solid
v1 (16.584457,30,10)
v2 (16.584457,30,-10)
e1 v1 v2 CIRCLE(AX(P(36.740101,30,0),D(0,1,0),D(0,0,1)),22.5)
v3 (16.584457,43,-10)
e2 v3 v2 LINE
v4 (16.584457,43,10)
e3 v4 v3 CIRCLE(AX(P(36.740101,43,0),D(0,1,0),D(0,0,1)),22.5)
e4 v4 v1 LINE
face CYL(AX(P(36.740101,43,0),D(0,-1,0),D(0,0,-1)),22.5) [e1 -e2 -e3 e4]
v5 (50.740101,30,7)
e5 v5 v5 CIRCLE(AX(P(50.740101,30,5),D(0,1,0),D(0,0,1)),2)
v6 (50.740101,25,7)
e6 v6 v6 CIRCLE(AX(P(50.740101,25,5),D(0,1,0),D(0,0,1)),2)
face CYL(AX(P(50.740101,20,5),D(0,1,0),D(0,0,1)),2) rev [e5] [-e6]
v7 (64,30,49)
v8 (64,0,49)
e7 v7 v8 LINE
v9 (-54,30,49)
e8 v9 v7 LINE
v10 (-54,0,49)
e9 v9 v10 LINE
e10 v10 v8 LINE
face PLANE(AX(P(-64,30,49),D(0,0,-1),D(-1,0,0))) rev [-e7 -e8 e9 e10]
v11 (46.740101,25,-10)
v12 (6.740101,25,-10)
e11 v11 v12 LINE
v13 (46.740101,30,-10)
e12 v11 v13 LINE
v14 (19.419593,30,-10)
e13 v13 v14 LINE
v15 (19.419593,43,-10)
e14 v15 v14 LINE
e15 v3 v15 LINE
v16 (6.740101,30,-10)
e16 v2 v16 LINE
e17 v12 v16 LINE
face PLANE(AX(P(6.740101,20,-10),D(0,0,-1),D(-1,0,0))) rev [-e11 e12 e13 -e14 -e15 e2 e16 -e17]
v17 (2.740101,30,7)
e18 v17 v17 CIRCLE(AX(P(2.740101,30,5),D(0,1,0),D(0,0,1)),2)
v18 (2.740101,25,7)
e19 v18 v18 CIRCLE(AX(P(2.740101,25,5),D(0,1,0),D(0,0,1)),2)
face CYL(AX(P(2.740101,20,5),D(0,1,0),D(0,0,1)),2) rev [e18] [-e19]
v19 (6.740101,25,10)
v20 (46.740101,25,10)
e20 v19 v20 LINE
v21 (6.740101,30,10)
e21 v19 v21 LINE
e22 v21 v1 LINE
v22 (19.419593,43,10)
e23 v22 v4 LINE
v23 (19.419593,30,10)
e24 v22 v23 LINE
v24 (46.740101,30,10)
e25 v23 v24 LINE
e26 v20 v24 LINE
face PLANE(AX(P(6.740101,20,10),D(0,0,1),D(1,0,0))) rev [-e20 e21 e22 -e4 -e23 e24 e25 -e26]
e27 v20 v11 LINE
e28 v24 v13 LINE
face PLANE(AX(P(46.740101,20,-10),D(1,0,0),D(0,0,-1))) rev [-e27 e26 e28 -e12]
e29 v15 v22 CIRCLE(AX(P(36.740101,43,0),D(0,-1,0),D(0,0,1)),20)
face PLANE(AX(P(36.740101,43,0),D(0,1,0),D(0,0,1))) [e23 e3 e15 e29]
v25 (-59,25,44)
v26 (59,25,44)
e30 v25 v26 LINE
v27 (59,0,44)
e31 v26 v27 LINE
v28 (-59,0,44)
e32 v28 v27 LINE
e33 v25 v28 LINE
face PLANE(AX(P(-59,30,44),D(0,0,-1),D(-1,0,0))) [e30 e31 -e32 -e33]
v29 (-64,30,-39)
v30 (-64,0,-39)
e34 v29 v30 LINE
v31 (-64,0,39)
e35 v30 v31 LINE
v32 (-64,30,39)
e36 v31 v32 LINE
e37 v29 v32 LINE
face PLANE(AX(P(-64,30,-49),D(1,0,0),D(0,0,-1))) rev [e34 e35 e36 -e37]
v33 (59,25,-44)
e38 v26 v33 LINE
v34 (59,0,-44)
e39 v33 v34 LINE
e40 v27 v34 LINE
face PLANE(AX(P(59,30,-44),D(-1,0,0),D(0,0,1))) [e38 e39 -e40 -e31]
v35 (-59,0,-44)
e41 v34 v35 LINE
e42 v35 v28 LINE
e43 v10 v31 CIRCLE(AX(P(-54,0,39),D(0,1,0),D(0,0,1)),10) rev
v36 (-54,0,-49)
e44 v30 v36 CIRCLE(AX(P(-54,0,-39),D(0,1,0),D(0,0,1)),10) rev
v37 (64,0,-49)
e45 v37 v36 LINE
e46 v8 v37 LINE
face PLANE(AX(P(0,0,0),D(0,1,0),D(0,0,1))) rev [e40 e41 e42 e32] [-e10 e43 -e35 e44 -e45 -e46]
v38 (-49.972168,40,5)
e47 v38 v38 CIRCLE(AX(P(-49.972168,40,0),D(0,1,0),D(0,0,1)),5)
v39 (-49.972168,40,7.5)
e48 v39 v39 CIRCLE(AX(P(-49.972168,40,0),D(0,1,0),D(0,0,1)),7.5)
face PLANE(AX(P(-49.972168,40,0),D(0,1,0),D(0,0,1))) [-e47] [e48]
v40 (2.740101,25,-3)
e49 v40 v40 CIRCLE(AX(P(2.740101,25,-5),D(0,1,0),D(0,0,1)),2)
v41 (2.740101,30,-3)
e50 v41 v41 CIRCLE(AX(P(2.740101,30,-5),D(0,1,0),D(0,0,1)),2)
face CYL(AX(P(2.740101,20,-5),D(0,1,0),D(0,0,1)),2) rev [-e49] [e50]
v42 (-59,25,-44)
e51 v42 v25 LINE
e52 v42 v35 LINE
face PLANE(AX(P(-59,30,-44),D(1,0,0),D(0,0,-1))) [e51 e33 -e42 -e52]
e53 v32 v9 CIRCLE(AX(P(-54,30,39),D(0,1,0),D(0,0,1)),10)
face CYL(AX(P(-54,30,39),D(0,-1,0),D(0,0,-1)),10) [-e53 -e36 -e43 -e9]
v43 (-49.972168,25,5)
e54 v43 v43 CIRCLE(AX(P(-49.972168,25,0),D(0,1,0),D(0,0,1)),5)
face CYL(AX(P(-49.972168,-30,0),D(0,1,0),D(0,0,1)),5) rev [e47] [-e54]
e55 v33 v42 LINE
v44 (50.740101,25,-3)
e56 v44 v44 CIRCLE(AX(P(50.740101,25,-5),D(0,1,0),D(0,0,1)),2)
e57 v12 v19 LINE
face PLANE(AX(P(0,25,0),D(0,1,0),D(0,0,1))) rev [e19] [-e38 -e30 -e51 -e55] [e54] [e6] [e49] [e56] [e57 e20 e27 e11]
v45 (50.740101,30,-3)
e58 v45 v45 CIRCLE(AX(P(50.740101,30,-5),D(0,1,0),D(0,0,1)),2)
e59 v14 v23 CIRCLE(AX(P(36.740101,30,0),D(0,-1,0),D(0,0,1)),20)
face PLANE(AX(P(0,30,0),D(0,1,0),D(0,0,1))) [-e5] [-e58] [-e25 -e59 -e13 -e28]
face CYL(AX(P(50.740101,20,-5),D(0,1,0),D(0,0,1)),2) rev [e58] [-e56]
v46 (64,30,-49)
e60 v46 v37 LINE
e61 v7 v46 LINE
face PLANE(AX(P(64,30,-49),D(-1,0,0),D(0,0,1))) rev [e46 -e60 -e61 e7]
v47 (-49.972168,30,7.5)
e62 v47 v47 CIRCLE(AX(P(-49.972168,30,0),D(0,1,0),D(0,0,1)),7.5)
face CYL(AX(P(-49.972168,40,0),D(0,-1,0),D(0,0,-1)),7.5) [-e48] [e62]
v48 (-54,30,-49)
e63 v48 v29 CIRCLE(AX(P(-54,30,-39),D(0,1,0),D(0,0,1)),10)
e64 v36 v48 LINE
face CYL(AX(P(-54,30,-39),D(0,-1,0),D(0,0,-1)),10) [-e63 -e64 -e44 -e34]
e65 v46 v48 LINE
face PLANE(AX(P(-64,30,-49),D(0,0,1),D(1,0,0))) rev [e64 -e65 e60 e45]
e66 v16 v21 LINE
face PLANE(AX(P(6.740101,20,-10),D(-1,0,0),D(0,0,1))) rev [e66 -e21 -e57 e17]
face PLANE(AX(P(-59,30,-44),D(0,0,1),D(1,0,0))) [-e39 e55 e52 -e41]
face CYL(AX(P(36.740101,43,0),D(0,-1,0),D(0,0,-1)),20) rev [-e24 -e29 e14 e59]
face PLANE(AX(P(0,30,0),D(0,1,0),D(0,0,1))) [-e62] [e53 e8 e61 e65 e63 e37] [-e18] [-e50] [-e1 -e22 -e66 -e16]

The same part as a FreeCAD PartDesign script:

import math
import FreeCAD as App
import Part
import Sketcher


def edges_at(feature, points):
    """Names of the edges that pass closest to the given points."""
    edges = feature.Shape.Edges
    near = lambda p: min(range(len(edges)), key=lambda i: edges[i].distToShape(Part.Vertex(*p))[0])
    return sorted({f"Edge{near(p) + 1}" for p in points})

doc = App.newDocument("Part")
body = doc.addObject("PartDesign::Body", "Body")

sketch1 = body.newObject("Sketcher::SketchObject", "Sketch")
sketch1.AttachmentSupport = (doc.getObject("XZ_Plane"), [""])
sketch1.MapMode = "FlatFace"
sketch1.addGeometry(Part.LineSegment(App.Vector(-64, -49, 0), App.Vector(-64, 49, 0)), False)
sketch1.addGeometry(Part.LineSegment(App.Vector(-64, 49, 0), App.Vector(64, 49, 0)), False)
sketch1.addGeometry(Part.LineSegment(App.Vector(64, 49, 0), App.Vector(64, -49, 0)), False)
sketch1.addGeometry(Part.LineSegment(App.Vector(64, -49, 0), App.Vector(-64, -49, 0)), False)
sketch1.addGeometry(Part.LineSegment(App.Vector(59, 44, 0), App.Vector(-59, 44, 0)), False)
sketch1.addGeometry(Part.LineSegment(App.Vector(-59, 44, 0), App.Vector(-59, -44, 0)), False)
sketch1.addGeometry(Part.LineSegment(App.Vector(-59, -44, 0), App.Vector(59, -44, 0)), False)
sketch1.addGeometry(Part.LineSegment(App.Vector(59, -44, 0), App.Vector(59, 44, 0)), False)
sketch1.addConstraint(Sketcher.Constraint("Coincident", 0, 2, 1, 1))
sketch1.addConstraint(Sketcher.Constraint("Coincident", 1, 2, 2, 1))
sketch1.addConstraint(Sketcher.Constraint("Coincident", 2, 2, 3, 1))
sketch1.addConstraint(Sketcher.Constraint("Coincident", 3, 2, 0, 1))
sketch1.addConstraint(Sketcher.Constraint("Coincident", 4, 2, 5, 1))
sketch1.addConstraint(Sketcher.Constraint("Coincident", 5, 2, 6, 1))
sketch1.addConstraint(Sketcher.Constraint("Coincident", 6, 2, 7, 1))
sketch1.addConstraint(Sketcher.Constraint("Coincident", 7, 2, 4, 1))
sketch1.addConstraint(Sketcher.Constraint("Vertical", 0))
sketch1.addConstraint(Sketcher.Constraint("Horizontal", 1))
sketch1.addConstraint(Sketcher.Constraint("Vertical", 2))
sketch1.addConstraint(Sketcher.Constraint("Horizontal", 3))
sketch1.addConstraint(Sketcher.Constraint("Horizontal", 4))
sketch1.addConstraint(Sketcher.Constraint("Vertical", 5))
sketch1.addConstraint(Sketcher.Constraint("Horizontal", 6))
sketch1.addConstraint(Sketcher.Constraint("Vertical", 7))
sketch1.addConstraint(Sketcher.Constraint("Symmetric", 0, 2, 2, 2, -1, 1))
sketch1.addConstraint(Sketcher.Constraint("Symmetric", 4, 2, 6, 2, -1, 1))
sketch1.addConstraint(Sketcher.Constraint("DistanceX", 1, 1, 1, 2, 128.0))
sketch1.addConstraint(Sketcher.Constraint("DistanceX", 4, 2, 4, 1, 118.0))
sketch1.addConstraint(Sketcher.Constraint("DistanceY", 0, 1, 0, 2, 98.0))
sketch1.addConstraint(Sketcher.Constraint("DistanceY", 5, 2, 5, 1, 88.0))
pad1 = body.newObject("PartDesign::Pad", "Pad")
pad1.Profile = sketch1
pad1.Length = 30
pad1.Reversed = True

sketch2 = body.newObject("Sketcher::SketchObject", "Sketch001")
sketch2.AttachmentSupport = (doc.getObject("XZ_Plane"), [""])
sketch2.MapMode = "FlatFace"
sketch2.AttachmentOffset = App.Placement(App.Vector(0, 0, -30), App.Rotation())
sketch2.addGeometry(Part.LineSegment(App.Vector(-64, -49, 0), App.Vector(-64, 49, 0)), False)
sketch2.addGeometry(Part.LineSegment(App.Vector(-64, 49, 0), App.Vector(64, 49, 0)), False)
sketch2.addGeometry(Part.LineSegment(App.Vector(64, 49, 0), App.Vector(64, -49, 0)), False)
sketch2.addGeometry(Part.LineSegment(App.Vector(64, -49, 0), App.Vector(-64, -49, 0)), False)
sketch2.addConstraint(Sketcher.Constraint("Coincident", 0, 2, 1, 1))
sketch2.addConstraint(Sketcher.Constraint("Coincident", 1, 2, 2, 1))
sketch2.addConstraint(Sketcher.Constraint("Coincident", 2, 2, 3, 1))
sketch2.addConstraint(Sketcher.Constraint("Coincident", 3, 2, 0, 1))
sketch2.addConstraint(Sketcher.Constraint("Vertical", 0))
sketch2.addConstraint(Sketcher.Constraint("Horizontal", 1))
sketch2.addConstraint(Sketcher.Constraint("Vertical", 2))
sketch2.addConstraint(Sketcher.Constraint("Horizontal", 3))
sketch2.addConstraint(Sketcher.Constraint("Symmetric", 0, 2, 2, 2, -1, 1))
sketch2.addConstraint(Sketcher.Constraint("DistanceX", 1, 1, 1, 2, 128.0))
sketch2.addConstraint(Sketcher.Constraint("DistanceY", 0, 1, 0, 2, 98.0))
pad2 = body.newObject("PartDesign::Pad", "Pad001")
pad2.Profile = sketch2
pad2.Length = 5

sketch3 = body.newObject("Sketcher::SketchObject", "Sketch002")
sketch3.AttachmentSupport = (doc.getObject("XZ_Plane"), [""])
sketch3.MapMode = "FlatFace"
sketch3.AttachmentOffset = App.Placement(App.Vector(0, 0, -30), App.Rotation())
sketch3.addGeometry(Part.LineSegment(App.Vector(7, -10, 0), App.Vector(7, 10, 0)), False)
sketch3.addGeometry(Part.LineSegment(App.Vector(7, 10, 0), App.Vector(47, 10, 0)), False)
sketch3.addGeometry(Part.LineSegment(App.Vector(47, 10, 0), App.Vector(47, -10, 0)), False)
sketch3.addGeometry(Part.LineSegment(App.Vector(47, -10, 0), App.Vector(7, -10, 0)), False)
sketch3.addConstraint(Sketcher.Constraint("Coincident", 0, 2, 1, 1))
sketch3.addConstraint(Sketcher.Constraint("Coincident", 1, 2, 2, 1))
sketch3.addConstraint(Sketcher.Constraint("Coincident", 2, 2, 3, 1))
sketch3.addConstraint(Sketcher.Constraint("Coincident", 3, 2, 0, 1))
sketch3.addConstraint(Sketcher.Constraint("Vertical", 0))
sketch3.addConstraint(Sketcher.Constraint("Horizontal", 1))
sketch3.addConstraint(Sketcher.Constraint("Vertical", 2))
sketch3.addConstraint(Sketcher.Constraint("Horizontal", 3))
sketch3.addConstraint(Sketcher.Constraint("DistanceX", 1, 1, 1, 2, 40.0))
sketch3.addConstraint(Sketcher.Constraint("DistanceY", 0, 1, 0, 2, 20.0))
sketch3.addConstraint(Sketcher.Constraint("DistanceY", -1, 1, 0, 2, 10.0))
sketch3.addConstraint(Sketcher.Constraint("DistanceX", -1, 1, 0, 2, 6.740101))
pocket1 = body.newObject("PartDesign::Pocket", "Pocket")
pocket1.Profile = sketch3
pocket1.Length = 10
pocket1.Reversed = True
doc.recompute()

fillet = body.newObject("PartDesign::Fillet", "Fillet")
fillet.Base = (pocket1, edges_at(pocket1, [(-64, 15, 49), (-64, 15, -49)]))
fillet.Radius = 10

sketch4 = body.newObject("Sketcher::SketchObject", "Sketch003")
sketch4.AttachmentSupport = (doc.getObject("XZ_Plane"), [""])
sketch4.MapMode = "FlatFace"
sketch4.AttachmentOffset = App.Placement(App.Vector(0, 0, -30), App.Rotation())
sketch4.addGeometry(Part.Circle(App.Vector(50.7, 5, 0), App.Vector(0, 0, 1), 2), False)
sketch4.addGeometry(Part.Circle(App.Vector(50.7, -5, 0), App.Vector(0, 0, 1), 2), False)
sketch4.addGeometry(Part.Circle(App.Vector(2.7, -5, 0), App.Vector(0, 0, 1), 2), False)
sketch4.addGeometry(Part.Circle(App.Vector(2.7, 5, 0), App.Vector(0, 0, 1), 2), False)
sketch4.addConstraint(Sketcher.Constraint("Equal", 0, 1))
sketch4.addConstraint(Sketcher.Constraint("Equal", 1, 2))
sketch4.addConstraint(Sketcher.Constraint("Equal", 2, 3))
sketch4.addConstraint(Sketcher.Constraint("Symmetric", 0, 3, 1, 3, -1))
sketch4.addConstraint(Sketcher.Constraint("Symmetric", 2, 3, 3, 3, -1))
sketch4.addConstraint(Sketcher.Constraint("Horizontal", 1, 3, 2, 3))
sketch4.addConstraint(Sketcher.Constraint("Diameter", 0, 4.0))
sketch4.addConstraint(Sketcher.Constraint("DistanceY", -1, 1, 0, 3, 5.0))
sketch4.addConstraint(Sketcher.Constraint("DistanceX", 2, 3, 1, 3, 48.0))
sketch4.addConstraint(Sketcher.Constraint("DistanceX", -1, 1, 0, 3, 50.740101))
pocket2 = body.newObject("PartDesign::Pocket", "Pocket001")
pocket2.Profile = sketch4
pocket2.Length = 10
pocket2.Reversed = True

sketch5 = body.newObject("Sketcher::SketchObject", "Sketch004")
sketch5.AttachmentSupport = (doc.getObject("XZ_Plane"), [""])
sketch5.MapMode = "FlatFace"
sketch5.AttachmentOffset = App.Placement(App.Vector(0, 0, -30), App.Rotation())
sketch5.addGeometry(Part.LineSegment(App.Vector(16.6, -10, 0), App.Vector(19.4, -10, 0)), False)
sketch5.addGeometry(Part.ArcOfCircle(Part.Circle(App.Vector(36.7, 0, 0), App.Vector(0, 0, 1), 20), math.radians(-150), math.radians(150)), False)
sketch5.addGeometry(Part.LineSegment(App.Vector(19.4, 10, 0), App.Vector(16.6, 10, 0)), False)
sketch5.addGeometry(Part.ArcOfCircle(Part.Circle(App.Vector(36.7, 0, 0), App.Vector(0, 0, 1), 22.5), math.radians(-154), math.radians(154)), False)
sketch5.addConstraint(Sketcher.Constraint("Coincident", 0, 2, 1, 1))
sketch5.addConstraint(Sketcher.Constraint("Coincident", 1, 2, 2, 1))
sketch5.addConstraint(Sketcher.Constraint("Coincident", 2, 2, 3, 2))
sketch5.addConstraint(Sketcher.Constraint("Coincident", 3, 1, 0, 1))
sketch5.addConstraint(Sketcher.Constraint("Horizontal", 0))
sketch5.addConstraint(Sketcher.Constraint("Horizontal", 2))
sketch5.addConstraint(Sketcher.Constraint("Coincident", 3, 3, 1, 3))
sketch5.addConstraint(Sketcher.Constraint("Symmetric", 0, 2, 1, 2, -1))
sketch5.addConstraint(Sketcher.Constraint("Radius", 1, 20.0))
sketch5.addConstraint(Sketcher.Constraint("Radius", 3, 22.5))
sketch5.addConstraint(Sketcher.Constraint("DistanceY", 0, 2, -1, 1, 10.0))
sketch5.addConstraint(Sketcher.Constraint("DistanceX", -1, 1, 1, 3, 36.740101))
pad3 = body.newObject("PartDesign::Pad", "Pad002")
pad3.Profile = sketch5
pad3.Length = 13
pad3.Reversed = True

sketch6 = body.newObject("Sketcher::SketchObject", "Sketch005")
sketch6.AttachmentSupport = (doc.getObject("XZ_Plane"), [""])
sketch6.MapMode = "FlatFace"
sketch6.AttachmentOffset = App.Placement(App.Vector(0, 0, -30), App.Rotation())
sketch6.addGeometry(Part.Circle(App.Vector(-50, 0, 0), App.Vector(0, 0, 1), 5), False)
sketch6.addConstraint(Sketcher.Constraint("PointOnObject", 0, 3, -1))
sketch6.addConstraint(Sketcher.Constraint("Diameter", 0, 10.0))
sketch6.addConstraint(Sketcher.Constraint("DistanceX", 0, 3, -1, 1, 49.972168))
pocket3 = body.newObject("PartDesign::Pocket", "Pocket002")
pocket3.Profile = sketch6
pocket3.Length = 60
pocket3.Reversed = True

sketch7 = body.newObject("Sketcher::SketchObject", "Sketch006")
sketch7.AttachmentSupport = (doc.getObject("XZ_Plane"), [""])
sketch7.MapMode = "FlatFace"
sketch7.AttachmentOffset = App.Placement(App.Vector(0, 0, -30), App.Rotation())
sketch7.addGeometry(Part.Circle(App.Vector(-50, 0, 0), App.Vector(0, 0, 1), 8), False)
sketch7.addGeometry(Part.Circle(App.Vector(-50, 0, 0), App.Vector(0, 0, 1), 5), False)
sketch7.addConstraint(Sketcher.Constraint("Coincident", 1, 3, 0, 3))
sketch7.addConstraint(Sketcher.Constraint("PointOnObject", 0, 3, -1))
sketch7.addConstraint(Sketcher.Constraint("Diameter", 0, 15.0))
sketch7.addConstraint(Sketcher.Constraint("Diameter", 1, 10.0))
sketch7.addConstraint(Sketcher.Constraint("DistanceX", 0, 3, -1, 1, 49.972168))
pad4 = body.newObject("PartDesign::Pad", "Pad003")
pad4.Profile = sketch7
pad4.Length = 10
pad4.Reversed = True

doc.recompute()
